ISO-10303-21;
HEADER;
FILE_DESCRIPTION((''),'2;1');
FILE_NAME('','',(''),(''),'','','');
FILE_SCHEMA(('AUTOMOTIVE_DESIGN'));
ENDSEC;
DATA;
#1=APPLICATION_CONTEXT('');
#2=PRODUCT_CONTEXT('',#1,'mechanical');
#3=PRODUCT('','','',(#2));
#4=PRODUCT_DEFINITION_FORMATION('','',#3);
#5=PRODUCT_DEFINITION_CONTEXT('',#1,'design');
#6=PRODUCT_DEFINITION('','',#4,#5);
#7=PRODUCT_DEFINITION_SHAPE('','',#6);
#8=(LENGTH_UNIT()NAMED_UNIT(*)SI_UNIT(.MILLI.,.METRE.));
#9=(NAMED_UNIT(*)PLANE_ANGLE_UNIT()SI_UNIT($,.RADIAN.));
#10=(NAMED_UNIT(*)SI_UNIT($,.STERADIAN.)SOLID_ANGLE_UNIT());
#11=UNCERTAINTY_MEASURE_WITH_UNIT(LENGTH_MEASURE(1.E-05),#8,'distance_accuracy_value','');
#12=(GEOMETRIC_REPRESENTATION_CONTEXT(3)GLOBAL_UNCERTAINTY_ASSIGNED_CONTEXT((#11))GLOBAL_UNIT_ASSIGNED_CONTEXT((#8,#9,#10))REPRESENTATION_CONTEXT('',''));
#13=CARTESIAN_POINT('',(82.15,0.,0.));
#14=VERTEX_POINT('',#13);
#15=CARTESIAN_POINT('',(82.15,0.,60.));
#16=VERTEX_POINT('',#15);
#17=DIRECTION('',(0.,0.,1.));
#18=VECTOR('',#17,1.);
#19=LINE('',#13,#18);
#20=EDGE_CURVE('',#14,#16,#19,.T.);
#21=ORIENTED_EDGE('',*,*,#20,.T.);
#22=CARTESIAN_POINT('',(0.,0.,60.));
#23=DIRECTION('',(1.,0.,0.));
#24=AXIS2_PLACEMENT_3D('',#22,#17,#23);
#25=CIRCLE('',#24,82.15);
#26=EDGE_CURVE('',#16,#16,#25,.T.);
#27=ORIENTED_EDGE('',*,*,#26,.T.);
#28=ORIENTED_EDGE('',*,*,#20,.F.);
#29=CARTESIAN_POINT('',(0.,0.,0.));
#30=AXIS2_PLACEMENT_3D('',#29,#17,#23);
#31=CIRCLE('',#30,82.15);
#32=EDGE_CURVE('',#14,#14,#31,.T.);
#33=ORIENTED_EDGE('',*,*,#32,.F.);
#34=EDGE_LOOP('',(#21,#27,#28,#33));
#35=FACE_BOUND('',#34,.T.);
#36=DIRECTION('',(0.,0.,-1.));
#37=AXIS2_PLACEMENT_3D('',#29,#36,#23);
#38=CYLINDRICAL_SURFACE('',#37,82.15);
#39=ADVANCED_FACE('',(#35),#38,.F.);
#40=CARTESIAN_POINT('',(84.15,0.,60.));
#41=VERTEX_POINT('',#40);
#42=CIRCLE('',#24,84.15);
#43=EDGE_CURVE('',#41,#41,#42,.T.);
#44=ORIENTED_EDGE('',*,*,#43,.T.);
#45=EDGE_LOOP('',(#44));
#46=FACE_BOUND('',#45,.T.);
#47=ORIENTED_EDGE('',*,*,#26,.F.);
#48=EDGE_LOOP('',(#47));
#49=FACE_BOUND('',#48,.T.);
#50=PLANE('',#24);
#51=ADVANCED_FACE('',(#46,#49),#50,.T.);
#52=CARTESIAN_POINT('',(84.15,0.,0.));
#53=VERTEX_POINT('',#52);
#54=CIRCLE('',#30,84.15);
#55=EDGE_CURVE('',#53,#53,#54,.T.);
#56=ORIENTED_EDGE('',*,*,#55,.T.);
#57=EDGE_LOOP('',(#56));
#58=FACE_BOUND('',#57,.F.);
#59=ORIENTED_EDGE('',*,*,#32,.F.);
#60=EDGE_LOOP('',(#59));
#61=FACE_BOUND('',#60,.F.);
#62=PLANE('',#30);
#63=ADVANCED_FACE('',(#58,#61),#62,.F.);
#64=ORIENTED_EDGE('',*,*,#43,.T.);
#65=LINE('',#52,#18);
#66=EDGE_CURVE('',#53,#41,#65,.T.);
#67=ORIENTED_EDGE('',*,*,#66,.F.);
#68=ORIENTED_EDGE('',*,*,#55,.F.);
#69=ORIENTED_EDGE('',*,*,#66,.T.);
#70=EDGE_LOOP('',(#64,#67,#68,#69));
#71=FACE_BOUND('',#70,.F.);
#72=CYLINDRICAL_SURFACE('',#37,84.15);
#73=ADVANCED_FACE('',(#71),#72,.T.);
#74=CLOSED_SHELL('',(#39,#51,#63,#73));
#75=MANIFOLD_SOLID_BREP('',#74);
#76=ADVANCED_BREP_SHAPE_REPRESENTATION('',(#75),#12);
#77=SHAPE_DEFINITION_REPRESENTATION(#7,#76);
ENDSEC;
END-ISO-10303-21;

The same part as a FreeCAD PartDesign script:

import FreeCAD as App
import Part
import Sketcher
Q = App.Units.Quantity

doc = App.newDocument("Part")
body = doc.addObject("PartDesign::Body", "Body")

# Sketch on XY plane
sketch1 = body.newObject("Sketcher::SketchObject", "Sketch")
sketch1.AttachmentSupport = (doc.getObject("XY_Plane"), [""])
sketch1.MapMode = "FlatFace"
sketch1.addGeometry([
    Part.Circle(App.Vector(0, 0, 0), App.Vector(0, 0, 1), 84),
    Part.Circle(App.Vector(0, 0, 0), App.Vector(0, 0, 1), 82),
], False)
sketch1.addConstraint([
    Sketcher.Constraint("Coincident", 0, 3, -1, 1),
    Sketcher.Constraint("Coincident", 1, 3, -1, 1),
    Sketcher.Constraint("Diameter", 0, Q("168.3 mm")),
    Sketcher.Constraint("Diameter", 1, Q("164.3 mm")),
])
pad1 = body.newObject("PartDesign::Pad", "Pad")
pad1.Profile = sketch1
pad1.Length = 60

doc.recompute()
